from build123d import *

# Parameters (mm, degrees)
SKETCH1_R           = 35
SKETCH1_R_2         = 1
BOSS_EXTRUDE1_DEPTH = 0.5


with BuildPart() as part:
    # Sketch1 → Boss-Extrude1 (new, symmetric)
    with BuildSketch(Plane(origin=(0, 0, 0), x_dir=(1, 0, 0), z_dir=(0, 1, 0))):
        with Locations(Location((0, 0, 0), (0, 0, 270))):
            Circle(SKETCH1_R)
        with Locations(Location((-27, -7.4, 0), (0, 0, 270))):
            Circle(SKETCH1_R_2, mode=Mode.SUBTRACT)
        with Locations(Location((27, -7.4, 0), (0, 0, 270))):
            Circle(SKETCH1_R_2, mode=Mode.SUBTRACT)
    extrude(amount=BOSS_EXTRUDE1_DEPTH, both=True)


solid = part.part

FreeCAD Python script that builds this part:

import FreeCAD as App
import Part
import Sketcher
from FreeCAD import Vector

doc = App.newDocument("Part")
body = doc.addObject("PartDesign::Body", "Body")

sketch1 = doc.addObject("Sketcher::SketchObject", "Sketch")
body.addObject(sketch1)
sketch1.AttachmentSupport = (doc.XZ_Plane, [""])
sketch1.MapMode = "FlatFace"
sketch1.addGeometry([
    Part.Circle(Vector(0, 0, 0), Vector(0, 0, 1), 35),
    Part.Circle(Vector(-27, 7.4, 0), Vector(0, 0, 1), 1),
    Part.Circle(Vector(27, 7.4, 0), Vector(0, 0, 1), 1),
], False)
sketch1.addConstraint([
    Sketcher.Constraint("Coincident", 0, 3, -1, 1),
    Sketcher.Constraint("Equal", 1, 2),
    Sketcher.Constraint("Symmetric", 1, 3, 2, 3, -2),
    Sketcher.Constraint("Diameter", 0, 70.0),
    Sketcher.Constraint("Diameter", 1, 2.0),
    Sketcher.Constraint("DistanceX", 1, 3, -1, 1, 27.0),
    Sketcher.Constraint("DistanceY", -1, 1, 1, 3, 7.4),
])
pad1 = doc.addObject("PartDesign::Pad", "Pad")
body.addObject(pad1)
pad1.Profile = sketch1
pad1.Length = 1
pad1.Midplane = True

doc.recompute()
